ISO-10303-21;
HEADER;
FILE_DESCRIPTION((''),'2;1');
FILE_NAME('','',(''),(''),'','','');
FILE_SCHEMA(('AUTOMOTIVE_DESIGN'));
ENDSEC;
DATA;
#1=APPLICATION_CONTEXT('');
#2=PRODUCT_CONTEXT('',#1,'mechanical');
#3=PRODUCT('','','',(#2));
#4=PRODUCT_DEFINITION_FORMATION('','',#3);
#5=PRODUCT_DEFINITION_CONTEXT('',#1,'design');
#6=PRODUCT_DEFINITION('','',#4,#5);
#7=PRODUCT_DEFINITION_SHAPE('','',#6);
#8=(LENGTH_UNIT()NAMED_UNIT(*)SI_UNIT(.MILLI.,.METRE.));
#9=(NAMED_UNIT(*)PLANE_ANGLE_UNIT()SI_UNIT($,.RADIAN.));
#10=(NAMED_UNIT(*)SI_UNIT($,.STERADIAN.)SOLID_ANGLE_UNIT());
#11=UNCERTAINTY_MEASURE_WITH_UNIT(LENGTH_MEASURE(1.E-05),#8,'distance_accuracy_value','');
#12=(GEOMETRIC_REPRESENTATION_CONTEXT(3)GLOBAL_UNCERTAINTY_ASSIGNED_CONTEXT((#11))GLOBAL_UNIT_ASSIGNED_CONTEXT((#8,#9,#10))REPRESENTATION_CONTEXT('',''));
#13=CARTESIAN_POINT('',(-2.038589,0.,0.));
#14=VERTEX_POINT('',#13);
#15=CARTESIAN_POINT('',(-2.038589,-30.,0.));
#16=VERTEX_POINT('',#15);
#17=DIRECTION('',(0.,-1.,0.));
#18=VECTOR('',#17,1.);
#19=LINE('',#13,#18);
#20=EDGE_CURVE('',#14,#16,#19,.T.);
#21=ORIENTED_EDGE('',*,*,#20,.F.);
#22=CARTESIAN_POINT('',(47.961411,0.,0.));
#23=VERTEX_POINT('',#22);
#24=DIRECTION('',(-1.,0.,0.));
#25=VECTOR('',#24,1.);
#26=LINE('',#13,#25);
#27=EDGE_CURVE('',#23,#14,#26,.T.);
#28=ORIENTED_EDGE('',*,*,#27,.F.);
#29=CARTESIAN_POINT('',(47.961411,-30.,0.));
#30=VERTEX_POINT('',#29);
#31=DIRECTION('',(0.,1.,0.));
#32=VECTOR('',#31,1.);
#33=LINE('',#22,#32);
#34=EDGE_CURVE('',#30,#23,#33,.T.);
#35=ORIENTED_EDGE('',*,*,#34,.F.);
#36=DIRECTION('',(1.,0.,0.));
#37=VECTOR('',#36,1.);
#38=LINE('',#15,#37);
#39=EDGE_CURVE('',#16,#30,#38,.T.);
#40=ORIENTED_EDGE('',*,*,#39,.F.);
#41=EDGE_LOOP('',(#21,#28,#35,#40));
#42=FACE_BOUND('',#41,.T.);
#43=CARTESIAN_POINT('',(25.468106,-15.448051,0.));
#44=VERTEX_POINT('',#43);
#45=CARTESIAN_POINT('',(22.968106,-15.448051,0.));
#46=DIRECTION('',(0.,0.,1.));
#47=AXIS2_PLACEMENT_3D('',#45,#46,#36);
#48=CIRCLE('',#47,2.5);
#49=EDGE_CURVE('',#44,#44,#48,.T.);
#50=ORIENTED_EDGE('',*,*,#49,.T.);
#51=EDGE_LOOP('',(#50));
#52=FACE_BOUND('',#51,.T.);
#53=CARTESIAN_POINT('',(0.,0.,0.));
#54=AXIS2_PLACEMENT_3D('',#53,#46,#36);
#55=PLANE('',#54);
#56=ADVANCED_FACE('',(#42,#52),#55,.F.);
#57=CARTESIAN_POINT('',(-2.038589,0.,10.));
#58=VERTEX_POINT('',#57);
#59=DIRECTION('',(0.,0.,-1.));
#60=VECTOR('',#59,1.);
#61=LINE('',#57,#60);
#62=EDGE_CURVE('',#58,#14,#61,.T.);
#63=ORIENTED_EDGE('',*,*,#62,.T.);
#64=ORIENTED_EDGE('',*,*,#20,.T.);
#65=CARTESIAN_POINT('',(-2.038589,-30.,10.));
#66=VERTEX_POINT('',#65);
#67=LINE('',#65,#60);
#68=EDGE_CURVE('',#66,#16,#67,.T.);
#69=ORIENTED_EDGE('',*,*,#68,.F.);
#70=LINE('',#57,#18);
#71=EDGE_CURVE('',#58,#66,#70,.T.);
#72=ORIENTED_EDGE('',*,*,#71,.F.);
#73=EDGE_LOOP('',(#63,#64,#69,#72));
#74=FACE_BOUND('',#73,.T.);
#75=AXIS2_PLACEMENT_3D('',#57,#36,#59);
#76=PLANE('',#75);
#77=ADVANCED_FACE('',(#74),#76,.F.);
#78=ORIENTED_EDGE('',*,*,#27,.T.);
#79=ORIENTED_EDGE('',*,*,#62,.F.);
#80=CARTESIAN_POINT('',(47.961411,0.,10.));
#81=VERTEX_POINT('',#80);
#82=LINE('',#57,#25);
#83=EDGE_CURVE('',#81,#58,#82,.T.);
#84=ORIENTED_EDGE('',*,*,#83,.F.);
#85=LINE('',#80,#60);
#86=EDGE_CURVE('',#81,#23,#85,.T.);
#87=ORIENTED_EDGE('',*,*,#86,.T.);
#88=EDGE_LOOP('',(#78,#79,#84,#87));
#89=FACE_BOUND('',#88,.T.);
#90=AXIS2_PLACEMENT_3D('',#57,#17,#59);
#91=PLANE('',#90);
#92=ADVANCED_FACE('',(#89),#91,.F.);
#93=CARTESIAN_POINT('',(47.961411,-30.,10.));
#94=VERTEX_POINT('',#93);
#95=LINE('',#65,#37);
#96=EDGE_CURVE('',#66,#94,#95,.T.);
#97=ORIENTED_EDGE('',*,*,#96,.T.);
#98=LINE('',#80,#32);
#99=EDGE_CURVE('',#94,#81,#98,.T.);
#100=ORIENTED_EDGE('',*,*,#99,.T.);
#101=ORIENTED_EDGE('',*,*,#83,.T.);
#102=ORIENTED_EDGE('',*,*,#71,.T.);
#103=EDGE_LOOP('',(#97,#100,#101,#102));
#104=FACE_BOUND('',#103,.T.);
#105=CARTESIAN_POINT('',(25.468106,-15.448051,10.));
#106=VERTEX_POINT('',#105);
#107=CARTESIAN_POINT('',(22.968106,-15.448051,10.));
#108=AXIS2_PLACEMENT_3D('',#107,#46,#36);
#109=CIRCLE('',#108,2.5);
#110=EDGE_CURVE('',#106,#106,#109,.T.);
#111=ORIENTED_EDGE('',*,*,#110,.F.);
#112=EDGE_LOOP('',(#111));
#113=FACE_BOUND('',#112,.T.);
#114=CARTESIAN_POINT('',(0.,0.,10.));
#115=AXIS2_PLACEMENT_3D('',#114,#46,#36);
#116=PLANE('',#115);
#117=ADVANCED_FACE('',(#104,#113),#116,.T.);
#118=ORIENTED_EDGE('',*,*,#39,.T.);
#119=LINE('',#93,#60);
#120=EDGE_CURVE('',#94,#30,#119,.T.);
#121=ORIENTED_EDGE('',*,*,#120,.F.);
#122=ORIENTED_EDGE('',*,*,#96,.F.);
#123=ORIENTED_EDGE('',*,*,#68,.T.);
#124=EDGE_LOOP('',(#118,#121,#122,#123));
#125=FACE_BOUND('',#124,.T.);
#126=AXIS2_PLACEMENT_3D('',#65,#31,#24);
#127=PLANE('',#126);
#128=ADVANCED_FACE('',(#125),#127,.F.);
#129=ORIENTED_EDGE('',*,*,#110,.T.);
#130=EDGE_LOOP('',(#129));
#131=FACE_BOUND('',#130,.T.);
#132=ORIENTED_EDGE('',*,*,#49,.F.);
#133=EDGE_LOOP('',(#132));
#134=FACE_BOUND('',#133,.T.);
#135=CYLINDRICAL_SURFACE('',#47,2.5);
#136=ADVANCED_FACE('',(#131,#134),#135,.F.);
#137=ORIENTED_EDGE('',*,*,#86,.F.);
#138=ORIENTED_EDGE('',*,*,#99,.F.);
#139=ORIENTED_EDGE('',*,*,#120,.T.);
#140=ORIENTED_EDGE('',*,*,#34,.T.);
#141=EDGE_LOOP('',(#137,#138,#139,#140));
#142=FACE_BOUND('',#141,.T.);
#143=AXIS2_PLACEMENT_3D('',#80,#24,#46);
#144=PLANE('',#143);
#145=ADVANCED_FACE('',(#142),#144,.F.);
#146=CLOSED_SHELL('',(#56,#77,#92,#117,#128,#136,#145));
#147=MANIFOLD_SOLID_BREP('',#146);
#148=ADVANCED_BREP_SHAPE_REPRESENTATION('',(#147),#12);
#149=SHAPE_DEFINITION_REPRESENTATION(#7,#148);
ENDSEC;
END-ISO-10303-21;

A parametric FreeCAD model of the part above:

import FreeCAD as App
import Part
import Sketcher
Q = App.Units.Quantity


def add_polygon(sketch, points):
    """Adds a closed chain of lines whose ends are joined by coincident constraints."""
    first, n = sketch.GeometryCount, len(points)
    for a, b in zip(points, points[1:] + points[:1]):
        sketch.addGeometry(Part.LineSegment(App.Vector(*a, 0), App.Vector(*b, 0)), False)
    for i in range(n):
        sketch.addConstraint(Sketcher.Constraint("Coincident", first + i, 2, first + (i + 1) % n, 1))

doc = App.newDocument("Part")
body = doc.addObject("PartDesign::Body", "Body")

# Sketch on XY plane
sketch1 = body.newObject("Sketcher::SketchObject", "Sketch")
sketch1.AttachmentSupport = (doc.getObject("XY_Plane"), [""])
sketch1.MapMode = "FlatFace"
add_polygon(sketch1, [(-2, 0), (-2, -30), (48, -30), (48, 0)])  # lines 0-3
sketch1.addConstraint([
    Sketcher.Constraint("Vertical", 0),
    Sketcher.Constraint("Horizontal", 1),
    Sketcher.Constraint("Vertical", 2),
    Sketcher.Constraint("Horizontal", 3),
    Sketcher.Constraint("PointOnObject", 2, 2, -1),
    Sketcher.Constraint("DistanceX", 1, 1, 1, 2, Q("50 mm")),
    Sketcher.Constraint("DistanceY", 0, 2, 0, 1, Q("30 mm")),
    Sketcher.Constraint("DistanceX", 0, 2, -1, 1, Q("2.038589 mm")),
])
pad1 = body.newObject("PartDesign::Pad", "Pad")
pad1.Profile = sketch1
pad1.Length = 10

# Sketch on XY plane
sketch2 = body.newObject("Sketcher::SketchObject", "Sketch001")
sketch2.AttachmentSupport = (doc.getObject("XY_Plane"), [""])
sketch2.MapMode = "FlatFace"
sketch2.AttachmentOffset = App.Placement(App.Vector(0, 0, 10), App.Rotation())
sketch2.addGeometry(Part.Circle(App.Vector(23, -15.4, 0), App.Vector(0, 0, 1), 2.5), False)
sketch2.addConstraint([
    Sketcher.Constraint("Diameter", 0, Q("5 mm")),
    Sketcher.Constraint("DistanceY", 0, 3, -1, 1, Q("15.448051 mm")),
    Sketcher.Constraint("DistanceX", -1, 1, 0, 3, Q("22.968106 mm")),
])
pocket1 = body.newObject("PartDesign::Pocket", "Pocket")
pocket1.Profile = sketch2
pocket1.Length = 10

doc.recompute()
